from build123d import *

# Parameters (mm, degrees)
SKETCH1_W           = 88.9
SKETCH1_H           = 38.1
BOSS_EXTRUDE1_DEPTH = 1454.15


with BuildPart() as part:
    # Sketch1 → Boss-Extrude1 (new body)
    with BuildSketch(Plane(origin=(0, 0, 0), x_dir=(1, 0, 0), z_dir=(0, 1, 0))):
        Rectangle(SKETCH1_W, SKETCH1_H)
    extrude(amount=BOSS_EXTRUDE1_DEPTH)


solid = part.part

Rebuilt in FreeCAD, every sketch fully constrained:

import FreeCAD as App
import Part
import Sketcher
from FreeCAD import Vector
Q = App.Units.Quantity

doc = App.newDocument("Part")
body = doc.addObject("PartDesign::Body", "Body")

sketch1 = body.newObject("Sketcher::SketchObject", "Sketch")
sketch1.AttachmentSupport = (doc.getObject("XZ_Plane"), [""])
sketch1.MapMode = "FlatFace"
sketch1.addGeometry(Part.LineSegment(Vector(-44, -19, 0), Vector(-44, 19, 0)), False)
sketch1.addGeometry(Part.LineSegment(Vector(-44, 19, 0), Vector(44, 19, 0)), False)
sketch1.addGeometry(Part.LineSegment(Vector(44, 19, 0), Vector(44, -19, 0)), False)
sketch1.addGeometry(Part.LineSegment(Vector(44, -19, 0), Vector(-44, -19, 0)), False)
sketch1.addConstraint(Sketcher.Constraint("Coincident", 0, 2, 1, 1))
sketch1.addConstraint(Sketcher.Constraint("Coincident", 1, 2, 2, 1))
sketch1.addConstraint(Sketcher.Constraint("Coincident", 2, 2, 3, 1))
sketch1.addConstraint(Sketcher.Constraint("Coincident", 3, 2, 0, 1))
sketch1.addConstraint(Sketcher.Constraint("Vertical", 0))
sketch1.addConstraint(Sketcher.Constraint("Horizontal", 1))
sketch1.addConstraint(Sketcher.Constraint("Vertical", 2))
sketch1.addConstraint(Sketcher.Constraint("Horizontal", 3))
sketch1.addConstraint(Sketcher.Constraint("Symmetric", 0, 2, 2, 2, -1, 1))
sketch1.addConstraint(Sketcher.Constraint("DistanceX", 1, 1, 1, 2, Q("3.5 in")))
sketch1.addConstraint(Sketcher.Constraint("DistanceY", 0, 1, 0, 2, Q("1.5 in")))
pad1 = body.newObject("PartDesign::Pad", "Pad")
pad1.Profile = sketch1
pad1.Length = Q("57.25 in")
pad1.Reversed = True

doc.recompute()
